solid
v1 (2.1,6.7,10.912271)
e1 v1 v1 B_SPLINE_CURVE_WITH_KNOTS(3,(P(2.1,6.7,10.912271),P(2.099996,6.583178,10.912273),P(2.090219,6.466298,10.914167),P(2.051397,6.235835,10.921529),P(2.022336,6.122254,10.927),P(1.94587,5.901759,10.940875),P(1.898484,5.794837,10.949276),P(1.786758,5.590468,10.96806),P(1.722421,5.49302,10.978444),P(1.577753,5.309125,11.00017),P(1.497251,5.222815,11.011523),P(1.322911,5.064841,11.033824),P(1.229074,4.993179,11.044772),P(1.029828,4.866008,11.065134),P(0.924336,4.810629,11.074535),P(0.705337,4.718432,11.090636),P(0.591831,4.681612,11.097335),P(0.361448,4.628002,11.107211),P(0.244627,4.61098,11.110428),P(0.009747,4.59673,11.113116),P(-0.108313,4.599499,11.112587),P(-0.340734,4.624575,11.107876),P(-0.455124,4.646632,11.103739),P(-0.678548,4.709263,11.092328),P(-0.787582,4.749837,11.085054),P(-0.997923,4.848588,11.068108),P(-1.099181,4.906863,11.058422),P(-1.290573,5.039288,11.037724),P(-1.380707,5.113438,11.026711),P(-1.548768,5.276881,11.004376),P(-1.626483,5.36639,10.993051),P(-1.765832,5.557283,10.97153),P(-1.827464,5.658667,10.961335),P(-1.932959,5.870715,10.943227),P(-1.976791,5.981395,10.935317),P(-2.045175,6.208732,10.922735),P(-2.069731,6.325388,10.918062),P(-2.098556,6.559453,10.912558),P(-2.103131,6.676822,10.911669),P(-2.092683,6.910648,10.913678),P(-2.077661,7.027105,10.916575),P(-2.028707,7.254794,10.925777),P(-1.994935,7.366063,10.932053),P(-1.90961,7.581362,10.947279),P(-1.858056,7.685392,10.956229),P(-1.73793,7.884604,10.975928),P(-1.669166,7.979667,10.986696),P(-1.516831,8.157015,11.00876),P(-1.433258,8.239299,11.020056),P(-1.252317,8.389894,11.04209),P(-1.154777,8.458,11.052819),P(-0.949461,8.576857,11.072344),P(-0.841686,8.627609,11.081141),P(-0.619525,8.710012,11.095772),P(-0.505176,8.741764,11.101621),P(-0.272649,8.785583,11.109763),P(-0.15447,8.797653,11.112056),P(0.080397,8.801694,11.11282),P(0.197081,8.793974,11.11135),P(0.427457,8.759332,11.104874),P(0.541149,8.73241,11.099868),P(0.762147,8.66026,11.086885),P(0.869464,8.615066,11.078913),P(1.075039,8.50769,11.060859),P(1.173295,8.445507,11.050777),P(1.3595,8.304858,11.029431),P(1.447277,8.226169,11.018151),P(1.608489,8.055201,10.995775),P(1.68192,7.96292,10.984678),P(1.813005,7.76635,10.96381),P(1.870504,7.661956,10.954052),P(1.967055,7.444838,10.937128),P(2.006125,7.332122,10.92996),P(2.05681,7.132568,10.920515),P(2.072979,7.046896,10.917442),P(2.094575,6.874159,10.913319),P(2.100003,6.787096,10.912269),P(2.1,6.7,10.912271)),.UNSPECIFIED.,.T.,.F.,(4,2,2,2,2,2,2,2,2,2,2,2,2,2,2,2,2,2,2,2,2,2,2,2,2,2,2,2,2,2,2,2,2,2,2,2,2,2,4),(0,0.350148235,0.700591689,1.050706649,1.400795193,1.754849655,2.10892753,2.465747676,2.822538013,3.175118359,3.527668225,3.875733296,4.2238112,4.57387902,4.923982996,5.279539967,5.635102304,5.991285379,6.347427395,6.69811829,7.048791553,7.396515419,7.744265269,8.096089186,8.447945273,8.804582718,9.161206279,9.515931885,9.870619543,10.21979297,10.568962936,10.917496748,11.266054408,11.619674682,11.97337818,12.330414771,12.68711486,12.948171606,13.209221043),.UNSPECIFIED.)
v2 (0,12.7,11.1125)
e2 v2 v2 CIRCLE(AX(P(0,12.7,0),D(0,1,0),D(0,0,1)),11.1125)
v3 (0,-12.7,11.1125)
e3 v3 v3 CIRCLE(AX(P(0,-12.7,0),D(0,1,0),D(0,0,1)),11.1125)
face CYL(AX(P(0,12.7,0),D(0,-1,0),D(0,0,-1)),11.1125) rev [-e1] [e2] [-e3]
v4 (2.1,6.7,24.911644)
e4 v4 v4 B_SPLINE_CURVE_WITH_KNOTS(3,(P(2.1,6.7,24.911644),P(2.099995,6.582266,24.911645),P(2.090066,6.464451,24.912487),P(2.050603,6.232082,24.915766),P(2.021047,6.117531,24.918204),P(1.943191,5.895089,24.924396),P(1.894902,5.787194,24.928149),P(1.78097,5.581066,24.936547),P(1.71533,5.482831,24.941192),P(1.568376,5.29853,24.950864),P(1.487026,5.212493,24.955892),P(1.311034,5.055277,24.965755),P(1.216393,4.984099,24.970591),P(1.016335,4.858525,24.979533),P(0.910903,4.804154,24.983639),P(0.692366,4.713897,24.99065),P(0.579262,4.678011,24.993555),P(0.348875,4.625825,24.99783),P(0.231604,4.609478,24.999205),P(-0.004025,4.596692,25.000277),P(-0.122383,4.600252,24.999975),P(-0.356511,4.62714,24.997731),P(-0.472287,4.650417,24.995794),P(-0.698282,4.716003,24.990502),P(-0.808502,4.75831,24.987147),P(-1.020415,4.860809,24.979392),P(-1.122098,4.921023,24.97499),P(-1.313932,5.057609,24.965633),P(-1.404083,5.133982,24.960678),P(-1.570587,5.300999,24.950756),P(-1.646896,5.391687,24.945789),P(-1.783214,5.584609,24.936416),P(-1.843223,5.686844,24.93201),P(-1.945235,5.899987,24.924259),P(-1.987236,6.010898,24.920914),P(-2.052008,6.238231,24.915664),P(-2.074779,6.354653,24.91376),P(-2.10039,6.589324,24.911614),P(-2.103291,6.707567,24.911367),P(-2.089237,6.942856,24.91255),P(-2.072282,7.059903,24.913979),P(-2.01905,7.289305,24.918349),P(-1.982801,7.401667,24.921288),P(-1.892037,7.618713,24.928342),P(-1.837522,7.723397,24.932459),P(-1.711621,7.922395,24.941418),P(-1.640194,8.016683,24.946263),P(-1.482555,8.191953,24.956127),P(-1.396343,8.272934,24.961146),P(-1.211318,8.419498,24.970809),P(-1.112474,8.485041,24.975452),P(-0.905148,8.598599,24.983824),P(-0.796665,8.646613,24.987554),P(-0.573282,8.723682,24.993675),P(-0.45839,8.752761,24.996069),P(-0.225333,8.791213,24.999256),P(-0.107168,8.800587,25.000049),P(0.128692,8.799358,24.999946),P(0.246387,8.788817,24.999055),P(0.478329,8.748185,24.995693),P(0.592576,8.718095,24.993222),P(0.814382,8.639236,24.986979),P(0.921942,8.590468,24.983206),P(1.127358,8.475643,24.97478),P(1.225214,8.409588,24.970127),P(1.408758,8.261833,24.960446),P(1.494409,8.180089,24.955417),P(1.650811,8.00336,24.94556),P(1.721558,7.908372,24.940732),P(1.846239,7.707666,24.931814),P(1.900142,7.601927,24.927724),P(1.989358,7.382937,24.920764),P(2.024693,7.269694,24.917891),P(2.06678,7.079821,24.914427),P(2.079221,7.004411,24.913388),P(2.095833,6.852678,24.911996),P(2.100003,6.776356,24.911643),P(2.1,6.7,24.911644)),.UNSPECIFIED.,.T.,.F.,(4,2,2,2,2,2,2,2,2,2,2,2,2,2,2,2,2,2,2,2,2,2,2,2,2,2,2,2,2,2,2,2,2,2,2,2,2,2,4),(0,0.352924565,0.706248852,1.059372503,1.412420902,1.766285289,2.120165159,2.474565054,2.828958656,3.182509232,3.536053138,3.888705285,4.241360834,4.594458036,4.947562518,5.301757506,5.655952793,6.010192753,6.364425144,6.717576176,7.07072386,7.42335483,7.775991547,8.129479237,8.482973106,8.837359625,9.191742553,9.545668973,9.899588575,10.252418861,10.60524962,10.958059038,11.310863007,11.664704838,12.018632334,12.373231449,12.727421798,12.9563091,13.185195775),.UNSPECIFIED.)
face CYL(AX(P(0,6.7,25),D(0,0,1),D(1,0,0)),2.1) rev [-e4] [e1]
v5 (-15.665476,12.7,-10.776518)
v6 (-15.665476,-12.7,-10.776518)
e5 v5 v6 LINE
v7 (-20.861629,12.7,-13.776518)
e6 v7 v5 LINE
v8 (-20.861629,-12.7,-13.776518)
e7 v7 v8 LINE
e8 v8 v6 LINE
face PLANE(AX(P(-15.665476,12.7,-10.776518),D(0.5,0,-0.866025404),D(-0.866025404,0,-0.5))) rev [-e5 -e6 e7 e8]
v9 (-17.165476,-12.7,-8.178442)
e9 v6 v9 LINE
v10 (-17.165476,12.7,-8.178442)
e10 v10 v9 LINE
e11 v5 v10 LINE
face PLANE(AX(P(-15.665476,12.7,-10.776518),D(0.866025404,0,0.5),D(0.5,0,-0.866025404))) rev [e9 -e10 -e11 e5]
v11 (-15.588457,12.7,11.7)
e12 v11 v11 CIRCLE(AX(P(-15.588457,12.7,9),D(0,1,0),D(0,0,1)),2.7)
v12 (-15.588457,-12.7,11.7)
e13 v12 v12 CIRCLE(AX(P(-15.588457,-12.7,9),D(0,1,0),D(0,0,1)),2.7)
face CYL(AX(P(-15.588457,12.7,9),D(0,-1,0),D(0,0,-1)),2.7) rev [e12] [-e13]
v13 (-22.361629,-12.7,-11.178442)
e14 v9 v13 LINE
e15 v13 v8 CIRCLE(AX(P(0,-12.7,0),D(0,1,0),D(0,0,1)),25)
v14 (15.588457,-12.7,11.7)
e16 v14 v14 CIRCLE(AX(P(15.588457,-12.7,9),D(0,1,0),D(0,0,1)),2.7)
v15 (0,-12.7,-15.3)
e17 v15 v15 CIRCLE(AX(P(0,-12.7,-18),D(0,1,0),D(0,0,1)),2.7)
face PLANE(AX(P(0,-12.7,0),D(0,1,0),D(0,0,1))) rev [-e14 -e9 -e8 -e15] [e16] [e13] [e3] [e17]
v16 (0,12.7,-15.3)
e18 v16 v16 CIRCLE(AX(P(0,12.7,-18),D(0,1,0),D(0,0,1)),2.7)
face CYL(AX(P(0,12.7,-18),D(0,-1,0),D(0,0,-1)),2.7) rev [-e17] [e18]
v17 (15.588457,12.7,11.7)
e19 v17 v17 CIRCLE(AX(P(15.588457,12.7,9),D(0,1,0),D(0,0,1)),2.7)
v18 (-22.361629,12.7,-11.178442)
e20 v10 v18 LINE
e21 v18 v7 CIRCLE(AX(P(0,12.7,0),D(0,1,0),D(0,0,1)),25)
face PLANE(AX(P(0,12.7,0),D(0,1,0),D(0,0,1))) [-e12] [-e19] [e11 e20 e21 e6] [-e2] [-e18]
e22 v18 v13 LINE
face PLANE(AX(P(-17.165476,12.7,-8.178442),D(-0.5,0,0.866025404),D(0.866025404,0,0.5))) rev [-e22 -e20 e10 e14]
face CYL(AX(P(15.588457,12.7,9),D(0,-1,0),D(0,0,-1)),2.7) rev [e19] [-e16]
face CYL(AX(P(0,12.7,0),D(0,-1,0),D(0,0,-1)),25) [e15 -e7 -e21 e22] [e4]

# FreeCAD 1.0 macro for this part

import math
import FreeCAD as App
import Part
import Sketcher
Q = App.Units.Quantity

doc = App.newDocument("Part")
params = doc.addObject("Spreadsheet::Sheet", "Params")
for row, (alias, value) in enumerate([
    ("sketch1_radius", "25 mm"),
    ("sketch1_diameter", "5.4 mm"),
    ("sketch1_length", "6 mm"),
    ("sketch1_length2", "3 mm"),
    ("pad1_length", "25.4 mm"),
    ("sketch2_diameter", "4.2 mm"),
], start=1):
    params.set(f"A{row}", alias)
    params.set(f"B{row}", "=" + value)
    params.setAlias(f"B{row}", alias)

body = doc.addObject("PartDesign::Body", "Body")

sketch1 = body.newObject("Sketcher::SketchObject", "Sketch")
sketch1.AttachmentSupport = (doc.getObject("XZ_Plane"), [""])
sketch1.MapMode = "FlatFace"
sketch1.addGeometry(Part.LineSegment(App.Vector(-20.861629, -13.776518, 0), App.Vector(-15.665476, -10.776518, 0)), False)
sketch1.addGeometry(Part.LineSegment(App.Vector(-15.665476, -10.776518, 0), App.Vector(-17.165476, -8.178442, 0)), False)
sketch1.addGeometry(Part.LineSegment(App.Vector(-17.165476, -8.178442, 0), App.Vector(-22.361629, -11.178442, 0)), False)
sketch1.addGeometry(Part.ArcOfCircle(Part.Circle(App.Vector(0, 0, 0), App.Vector(0, 0, 1), 25), math.radians(-146.560187), math.radians(206.560187)), False)
sketch1.addGeometry(Part.Circle(App.Vector(15.588457, 9, 0), App.Vector(0, 0, 1), 2.7), False)
sketch1.addGeometry(Part.Circle(App.Vector(-15.588457, 9, 0), App.Vector(0, 0, 1), 2.7), False)
sketch1.addGeometry(Part.Circle(App.Vector(0, 0, 0), App.Vector(0, 0, 1), 11.1125), False)
sketch1.addGeometry(Part.Circle(App.Vector(0, -18, 0), App.Vector(0, 0, 1), 2.7), False)
sketch1.addConstraint(Sketcher.Constraint("Coincident", 0, 2, 1, 1))
sketch1.addConstraint(Sketcher.Constraint("Coincident", 1, 2, 2, 1))
sketch1.addConstraint(Sketcher.Constraint("Coincident", 2, 2, 3, 2))
sketch1.addConstraint(Sketcher.Constraint("Coincident", 3, 1, 0, 1))
sketch1.addConstraint(Sketcher.Constraint("Coincident", 3, 3, -1, 1))
sketch1.addConstraint(Sketcher.Constraint("Coincident", 6, 3, -1, 1))
sketch1.addConstraint(Sketcher.Constraint("Equal", 4, 5))
sketch1.addConstraint(Sketcher.Constraint("Equal", 5, 7))
sketch1.addConstraint(Sketcher.Constraint("Symmetric", 4, 3, 5, 3, -2))
sketch1.addConstraint(Sketcher.Constraint("PointOnObject", 7, 3, -2))
sketch1.addConstraint(Sketcher.Constraint("Perpendicular", 0, 1))
sketch1.addConstraint(Sketcher.Constraint("Perpendicular", 1, 2))
sketch1.addConstraint(Sketcher.Constraint("Equal", 0, 2))
sketch1.addConstraint(Sketcher.Constraint("Radius", 3, Q("25 mm")))
sketch1.addConstraint(Sketcher.Constraint("Diameter", 4, Q("5.4 mm")))
sketch1.addConstraint(Sketcher.Constraint("Angle", 0, Q("30 deg")))
sketch1.addConstraint(Sketcher.Constraint("Distance", 0, Q("6 mm")))
sketch1.addConstraint(Sketcher.Constraint("Distance", 1, Q("3 mm")))
sketch1.addConstraint(Sketcher.Constraint("Diameter", 6, Q("22.225 mm")))
sketch1.addConstraint(Sketcher.Constraint("DistanceY", -1, 1, 4, 3, Q("9 mm")))
sketch1.addConstraint(Sketcher.Constraint("DistanceY", 7, 3, -1, 1, Q("18 mm")))
sketch1.addConstraint(Sketcher.Constraint("DistanceX", 0, 2, 5, 3, Q("0.077019 mm")))
sketch1.setExpression("Constraints[13]", "Params.sketch1_radius")
sketch1.setExpression("Constraints[14]", "Params.sketch1_diameter")
sketch1.setExpression("Constraints[16]", "Params.sketch1_length")
sketch1.setExpression("Constraints[17]", "Params.sketch1_length2")
pad1 = body.newObject("PartDesign::Pad", "Pad")
pad1.Profile = sketch1
pad1.setExpression("Length", "Params.pad1_length")
pad1.Midplane = True

sketch2 = body.newObject("Sketcher::SketchObject", "Sketch001")
sketch2.AttachmentSupport = (doc.getObject("XY_Plane"), [""])
sketch2.MapMode = "FlatFace"
sketch2.AttachmentOffset = App.Placement(App.Vector(0, 0, 25), App.Rotation())
sketch2.addGeometry(Part.Circle(App.Vector(0, 6.7, 0), App.Vector(0, 0, 1), 2.1), False)
sketch2.addConstraint(Sketcher.Constraint("PointOnObject", 0, 3, -2))
sketch2.addConstraint(Sketcher.Constraint("Diameter", 0, Q("4.2 mm")))
sketch2.addConstraint(Sketcher.Constraint("DistanceY", -1, 1, 0, 3, Q("6.7 mm")))
sketch2.setExpression("Constraints[1]", "Params.sketch2_diameter")
pocket1 = body.newObject("PartDesign::Pocket", "Pocket")
pocket1.Profile = sketch2
pocket1.Type = "UpToFirst"

doc.recompute()
